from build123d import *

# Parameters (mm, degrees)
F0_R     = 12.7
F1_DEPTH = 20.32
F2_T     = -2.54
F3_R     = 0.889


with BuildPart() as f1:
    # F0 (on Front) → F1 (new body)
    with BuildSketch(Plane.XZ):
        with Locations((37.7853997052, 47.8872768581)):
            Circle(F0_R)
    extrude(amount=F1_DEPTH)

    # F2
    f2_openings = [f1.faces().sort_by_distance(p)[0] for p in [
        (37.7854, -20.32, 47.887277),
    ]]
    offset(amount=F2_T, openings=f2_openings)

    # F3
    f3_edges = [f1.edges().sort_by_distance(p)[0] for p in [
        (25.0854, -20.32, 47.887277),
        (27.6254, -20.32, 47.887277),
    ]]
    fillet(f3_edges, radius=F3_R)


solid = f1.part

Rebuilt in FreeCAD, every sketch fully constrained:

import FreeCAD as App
import Part
import Sketcher
Q = App.Units.Quantity


def edges_at(feature, points):
    """Names of the edges that pass closest to the given points."""
    edges = feature.Shape.Edges
    near = lambda p: min(range(len(edges)), key=lambda i: edges[i].distToShape(Part.Vertex(*p))[0])
    return sorted({f"Edge{near(p) + 1}" for p in points})


def faces_at(feature, points):
    """Names of the faces that lie closest to the given points."""
    faces = feature.Shape.Faces
    near = lambda p: min(range(len(faces)), key=lambda i: faces[i].distToShape(Part.Vertex(*p))[0])
    return sorted({f"Face{near(p) + 1}" for p in points})

doc = App.newDocument("Part")
params = doc.addObject("Spreadsheet::Sheet", "Params")
for row, (alias, value) in enumerate([
    ("sketch1_diameter", "1 in"),
    ("pad1_length", "0.8 in"),
    ("thickness_wall", "0.1 in"),
    ("fillet_radius", "0.035 in"),
], start=1):
    params.set(f"A{row}", alias)
    params.set(f"B{row}", "=" + value)
    params.setAlias(f"B{row}", alias)

body = doc.addObject("PartDesign::Body", "Body")

# Sketch on XZ plane
sketch1 = body.newObject("Sketcher::SketchObject", "Sketch")
sketch1.AttachmentSupport = (doc.getObject("XZ_Plane"), [""])
sketch1.MapMode = "FlatFace"
sketch1.addGeometry(Part.Circle(App.Vector(37.7854, 47.887277, 0), App.Vector(0, 0, 1), 12.7), False)
sketch1.addConstraint(Sketcher.Constraint("Diameter", 0, Q("1 in")))
sketch1.addConstraint(Sketcher.Constraint("DistanceX", -1, 1, 0, 3, Q("37.7854 mm")))
sketch1.addConstraint(Sketcher.Constraint("DistanceY", -1, 1, 0, 3, Q("47.887277 mm")))
sketch1.setExpression("Constraints[0]", "Params.sketch1_diameter")
pad1 = body.newObject("PartDesign::Pad", "Pad")
pad1.Profile = sketch1
pad1.setExpression("Length", "Params.pad1_length")
doc.recompute()

thickness = body.newObject("PartDesign::Thickness", "Thickness")
thickness.Base = (pad1, faces_at(pad1, [(37.785, -20.32, 47.887)]))
thickness.setExpression("Value", "Params.thickness_wall")
thickness.Reversed = True
thickness.Join = "Arc"
doc.recompute()

fillet = body.newObject("PartDesign::Fillet", "Fillet")
fillet.Base = (thickness, edges_at(thickness, [(25.085, -20.32, 47.887), (27.625, -20.32, 47.887)]))
fillet.setExpression("Radius", "Params.fillet_radius")

doc.recompute()
